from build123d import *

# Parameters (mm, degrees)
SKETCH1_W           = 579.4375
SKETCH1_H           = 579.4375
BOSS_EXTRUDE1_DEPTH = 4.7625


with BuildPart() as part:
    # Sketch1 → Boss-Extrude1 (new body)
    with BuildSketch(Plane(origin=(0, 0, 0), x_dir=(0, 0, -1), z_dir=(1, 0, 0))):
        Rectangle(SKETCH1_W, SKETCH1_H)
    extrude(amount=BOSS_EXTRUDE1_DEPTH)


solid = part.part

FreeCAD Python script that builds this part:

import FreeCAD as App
import Part
import Sketcher
Q = App.Units.Quantity


def add_polygon(sketch, points):
    """Adds a closed chain of lines whose ends are joined by coincident constraints."""
    first, n = sketch.GeometryCount, len(points)
    for a, b in zip(points, points[1:] + points[:1]):
        sketch.addGeometry(Part.LineSegment(App.Vector(*a, 0), App.Vector(*b, 0)), False)
    for i in range(n):
        sketch.addConstraint(Sketcher.Constraint("Coincident", first + i, 2, first + (i + 1) % n, 1))

doc = App.newDocument("Part")
body = doc.addObject("PartDesign::Body", "Body")

sketch1 = doc.addObject("Sketcher::SketchObject", "Sketch")
body.addObject(sketch1)
sketch1.AttachmentSupport = (doc.YZ_Plane, [""])
sketch1.MapMode = "FlatFace"
add_polygon(sketch1, [(289.71875, 289.71875), (-289.71875, 289.71875), (-289.71875, -289.71875), (289.71875, -289.71875)])
sketch1.addConstraint([
    Sketcher.Constraint("Horizontal", 0),
    Sketcher.Constraint("Vertical", 1),
    Sketcher.Constraint("Horizontal", 2),
    Sketcher.Constraint("Vertical", 3),
    Sketcher.Constraint("Symmetric", 0, 2, 2, 2, -1, 1),
    Sketcher.Constraint("Equal", 2, 1),
    Sketcher.Constraint("DistanceX", 0, 2, 0, 1, Q("22.8125 in")),
])
pad1 = doc.addObject("PartDesign::Pad", "Pad")
body.addObject(pad1)
pad1.Profile = sketch1
pad1.Length = Q("0.1875 in")

doc.recompute()
